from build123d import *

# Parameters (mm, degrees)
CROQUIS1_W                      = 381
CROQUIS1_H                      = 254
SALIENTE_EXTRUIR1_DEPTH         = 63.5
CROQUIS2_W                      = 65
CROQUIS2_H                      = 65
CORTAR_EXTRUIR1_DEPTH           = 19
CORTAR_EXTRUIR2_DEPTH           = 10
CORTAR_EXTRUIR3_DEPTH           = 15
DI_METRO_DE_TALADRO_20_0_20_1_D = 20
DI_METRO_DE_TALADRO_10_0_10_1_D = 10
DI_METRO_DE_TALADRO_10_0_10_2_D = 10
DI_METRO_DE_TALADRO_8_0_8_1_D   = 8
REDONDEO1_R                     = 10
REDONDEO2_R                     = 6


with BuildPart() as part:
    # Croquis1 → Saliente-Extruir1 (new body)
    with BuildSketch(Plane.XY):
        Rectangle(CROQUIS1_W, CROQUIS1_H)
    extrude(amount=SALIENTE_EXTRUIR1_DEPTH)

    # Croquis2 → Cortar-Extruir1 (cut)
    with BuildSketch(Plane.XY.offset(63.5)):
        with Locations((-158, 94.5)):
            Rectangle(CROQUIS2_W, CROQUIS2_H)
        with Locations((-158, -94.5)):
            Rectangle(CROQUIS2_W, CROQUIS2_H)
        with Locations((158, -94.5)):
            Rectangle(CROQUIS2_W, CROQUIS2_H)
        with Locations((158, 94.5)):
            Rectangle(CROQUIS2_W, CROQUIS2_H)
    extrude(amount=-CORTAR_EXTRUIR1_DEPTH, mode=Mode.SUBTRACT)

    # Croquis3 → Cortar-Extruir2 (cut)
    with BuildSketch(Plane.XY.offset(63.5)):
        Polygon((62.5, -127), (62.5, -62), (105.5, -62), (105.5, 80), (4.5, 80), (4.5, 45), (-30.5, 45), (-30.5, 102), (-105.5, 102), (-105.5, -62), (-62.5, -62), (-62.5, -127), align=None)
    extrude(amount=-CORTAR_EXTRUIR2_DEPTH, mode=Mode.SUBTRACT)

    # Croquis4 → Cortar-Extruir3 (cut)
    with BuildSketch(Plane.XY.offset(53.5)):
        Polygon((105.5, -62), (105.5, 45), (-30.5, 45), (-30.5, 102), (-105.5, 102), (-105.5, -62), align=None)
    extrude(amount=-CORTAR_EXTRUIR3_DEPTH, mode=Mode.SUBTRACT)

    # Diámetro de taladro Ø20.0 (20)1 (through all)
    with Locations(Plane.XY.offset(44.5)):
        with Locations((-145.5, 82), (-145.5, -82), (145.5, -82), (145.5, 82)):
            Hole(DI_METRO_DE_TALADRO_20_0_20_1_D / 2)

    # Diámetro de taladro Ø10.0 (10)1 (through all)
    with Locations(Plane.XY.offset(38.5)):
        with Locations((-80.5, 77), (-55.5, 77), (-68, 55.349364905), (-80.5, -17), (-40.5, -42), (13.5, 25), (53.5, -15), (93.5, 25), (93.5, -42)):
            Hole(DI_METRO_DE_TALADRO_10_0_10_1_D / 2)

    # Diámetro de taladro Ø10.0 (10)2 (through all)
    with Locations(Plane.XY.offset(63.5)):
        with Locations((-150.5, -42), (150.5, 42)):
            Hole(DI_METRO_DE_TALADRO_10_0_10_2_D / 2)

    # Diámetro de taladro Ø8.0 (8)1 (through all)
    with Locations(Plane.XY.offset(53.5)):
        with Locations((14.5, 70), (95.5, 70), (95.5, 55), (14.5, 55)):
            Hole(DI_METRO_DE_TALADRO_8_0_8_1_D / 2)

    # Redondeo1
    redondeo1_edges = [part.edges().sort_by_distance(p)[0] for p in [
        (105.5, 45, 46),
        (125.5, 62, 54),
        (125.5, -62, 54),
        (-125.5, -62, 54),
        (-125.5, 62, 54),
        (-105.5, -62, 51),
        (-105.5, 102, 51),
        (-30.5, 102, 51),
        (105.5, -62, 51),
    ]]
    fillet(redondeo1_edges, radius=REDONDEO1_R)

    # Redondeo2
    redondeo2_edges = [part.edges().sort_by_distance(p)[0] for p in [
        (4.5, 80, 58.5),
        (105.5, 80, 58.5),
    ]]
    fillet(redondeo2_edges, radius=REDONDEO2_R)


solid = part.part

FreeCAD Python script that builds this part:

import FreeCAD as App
import Part
import Sketcher

V = App.Vector
Q = App.Units.Quantity


def edges_at(feature, points):
    """Names of the edges that pass closest to the given points."""
    edges = feature.Shape.Edges
    near = lambda p: min(range(len(edges)), key=lambda i: edges[i].distToShape(Part.Vertex(*p))[0])
    return sorted({f"Edge{near(p) + 1}" for p in points})


def add_polygon(sketch, points):
    """Adds a closed chain of lines whose ends are joined by coincident constraints."""
    first, n = sketch.GeometryCount, len(points)
    for a, b in zip(points, points[1:] + points[:1]):
        sketch.addGeometry(Part.LineSegment(App.Vector(*a, 0), App.Vector(*b, 0)), False)
    for i in range(n):
        sketch.addConstraint(Sketcher.Constraint("Coincident", first + i, 2, first + (i + 1) % n, 1))

doc = App.newDocument("Part")
body = doc.addObject("PartDesign::Body", "Body")

sketch1 = body.newObject("Sketcher::SketchObject", "Sketch")
sketch1.AttachmentSupport = (doc.getObject("XY_Plane"), [""])
sketch1.MapMode = "FlatFace"
add_polygon(sketch1, [(-190, 127), (-190, -127), (190, -127), (190, 127)])
sketch1.addConstraint(Sketcher.Constraint("Vertical", 0))
sketch1.addConstraint(Sketcher.Constraint("Horizontal", 1))
sketch1.addConstraint(Sketcher.Constraint("Vertical", 2))
sketch1.addConstraint(Sketcher.Constraint("Horizontal", 3))
sketch1.addConstraint(Sketcher.Constraint("Symmetric", 0, 2, 2, 2, -1, 1))
sketch1.addConstraint(Sketcher.Constraint("DistanceX", 1, 1, 1, 2, Q("381 mm")))
sketch1.addConstraint(Sketcher.Constraint("DistanceY", 0, 2, 0, 1, Q("254 mm")))
pad1 = body.newObject("PartDesign::Pad", "Pad")
pad1.Profile = sketch1
pad1.Length = 63.5

sketch2 = body.newObject("Sketcher::SketchObject", "Sketch001")
sketch2.AttachmentSupport = (doc.getObject("XY_Plane"), [""])
sketch2.MapMode = "FlatFace"
sketch2.AttachmentOffset = App.Placement(V(0, 0, 63.5), App.Rotation())
add_polygon(sketch2, [(-190, 127), (-190, 62), (-126, 62), (-126, 127)])
add_polygon(sketch2, [(-190, -62), (-190, -127), (-126, -127), (-126, -62)])
add_polygon(sketch2, [(126, -62), (126, -127), (190, -127), (190, -62)])
add_polygon(sketch2, [(126, 127), (126, 62), (190, 62), (190, 127)])
sketch2.addConstraint(Sketcher.Constraint("Vertical", 0))
sketch2.addConstraint(Sketcher.Constraint("Horizontal", 1))
sketch2.addConstraint(Sketcher.Constraint("Vertical", 2))
sketch2.addConstraint(Sketcher.Constraint("Horizontal", 3))
sketch2.addConstraint(Sketcher.Constraint("Vertical", 4))
sketch2.addConstraint(Sketcher.Constraint("Horizontal", 5))
sketch2.addConstraint(Sketcher.Constraint("Vertical", 6))
sketch2.addConstraint(Sketcher.Constraint("Horizontal", 7))
sketch2.addConstraint(Sketcher.Constraint("Vertical", 8))
sketch2.addConstraint(Sketcher.Constraint("Horizontal", 9))
sketch2.addConstraint(Sketcher.Constraint("Vertical", 10))
sketch2.addConstraint(Sketcher.Constraint("Horizontal", 11))
sketch2.addConstraint(Sketcher.Constraint("Vertical", 12))
sketch2.addConstraint(Sketcher.Constraint("Horizontal", 13))
sketch2.addConstraint(Sketcher.Constraint("Vertical", 14))
sketch2.addConstraint(Sketcher.Constraint("Horizontal", 15))
sketch2.addConstraint(Sketcher.Constraint("Symmetric", 2, 2, 8, 2, -1, 1))
sketch2.addConstraint(Sketcher.Constraint("Symmetric", 0, 2, 10, 2, -1, 1))
sketch2.addConstraint(Sketcher.Constraint("Symmetric", 6, 2, 12, 2, -1, 1))
sketch2.addConstraint(Sketcher.Constraint("Symmetric", 4, 2, 14, 2, -1, 1))
sketch2.addConstraint(Sketcher.Constraint("Symmetric", 5, 2, 8, 2, -2))
sketch2.addConstraint(Sketcher.Constraint("Symmetric", 7, 2, 10, 2, -2))
sketch2.addConstraint(Sketcher.Constraint("Equal", 15, 0))
sketch2.addConstraint(Sketcher.Constraint("DistanceX", 1, 1, 1, 2, Q("65 mm")))
sketch2.addConstraint(Sketcher.Constraint("DistanceY", -1, 1, 0, 2, Q("62 mm")))
sketch2.addConstraint(Sketcher.Constraint("DistanceX", 5, 2, 8, 2, Q("251 mm")))
pocket1 = body.newObject("PartDesign::Pocket", "Pocket")
pocket1.Profile = sketch2
pocket1.Length = 19

sketch3 = body.newObject("Sketcher::SketchObject", "Sketch002")
sketch3.AttachmentSupport = (doc.getObject("XY_Plane"), [""])
sketch3.MapMode = "FlatFace"
sketch3.AttachmentOffset = App.Placement(V(0, 0, 63.5), App.Rotation())
add_polygon(sketch3, [(62, -127), (62, -62), (106, -62), (106, 80), (4, 80), (4, 45), (-30, 45), (-30, 102), (-106, 102), (-106, -62), (-62, -62), (-62, -127)])
sketch3.addConstraint(Sketcher.Constraint("Vertical", 0))
sketch3.addConstraint(Sketcher.Constraint("Horizontal", 1))
sketch3.addConstraint(Sketcher.Constraint("Vertical", 2))
sketch3.addConstraint(Sketcher.Constraint("Horizontal", 3))
sketch3.addConstraint(Sketcher.Constraint("Vertical", 4))
sketch3.addConstraint(Sketcher.Constraint("Horizontal", 5))
sketch3.addConstraint(Sketcher.Constraint("Vertical", 6))
sketch3.addConstraint(Sketcher.Constraint("Horizontal", 7))
sketch3.addConstraint(Sketcher.Constraint("Vertical", 8))
sketch3.addConstraint(Sketcher.Constraint("Horizontal", 9))
sketch3.addConstraint(Sketcher.Constraint("Vertical", 10))
sketch3.addConstraint(Sketcher.Constraint("Horizontal", 11))
sketch3.addConstraint(Sketcher.Constraint("Symmetric", 1, 2, 8, 2, -2))
sketch3.addConstraint(Sketcher.Constraint("Equal", 1, 9))
sketch3.addConstraint(Sketcher.Constraint("Equal", 5, 4))
sketch3.addConstraint(Sketcher.Constraint("DistanceX", 1, 1, 1, 2, Q("43 mm")))
sketch3.addConstraint(Sketcher.Constraint("DistanceX", 3, 2, 3, 1, Q("101 mm")))
sketch3.addConstraint(Sketcher.Constraint("DistanceX", 5, 2, 5, 1, Q("35 mm")))
sketch3.addConstraint(Sketcher.Constraint("DistanceX", 7, 2, 7, 1, Q("75 mm")))
sketch3.addConstraint(Sketcher.Constraint("DistanceY", 0, 1, 0, 2, Q("65 mm")))
sketch3.addConstraint(Sketcher.Constraint("DistanceY", 2, 1, 2, 2, Q("142 mm")))
sketch3.addConstraint(Sketcher.Constraint("DistanceY", 6, 1, 6, 2, Q("57 mm")))
sketch3.addConstraint(Sketcher.Constraint("DistanceY", 0, 2, -1, 1, Q("62 mm")))
pocket2 = body.newObject("PartDesign::Pocket", "Pocket001")
pocket2.Profile = sketch3
pocket2.Length = 10

sketch4 = body.newObject("Sketcher::SketchObject", "Sketch003")
sketch4.AttachmentSupport = (doc.getObject("XY_Plane"), [""])
sketch4.MapMode = "FlatFace"
sketch4.AttachmentOffset = App.Placement(V(0, 0, 53.5), App.Rotation())
add_polygon(sketch4, [(106, -62), (106, 45), (-30, 45), (-30, 102), (-106, 102), (-106, -62)])
sketch4.addConstraint(Sketcher.Constraint("Vertical", 0))
sketch4.addConstraint(Sketcher.Constraint("Horizontal", 1))
sketch4.addConstraint(Sketcher.Constraint("Vertical", 2))
sketch4.addConstraint(Sketcher.Constraint("Horizontal", 3))
sketch4.addConstraint(Sketcher.Constraint("Vertical", 4))
sketch4.addConstraint(Sketcher.Constraint("Horizontal", 5))
sketch4.addConstraint(Sketcher.Constraint("DistanceX", 1, 2, 1, 1, Q("136 mm")))
sketch4.addConstraint(Sketcher.Constraint("DistanceX", 3, 2, 3, 1, Q("75 mm")))
sketch4.addConstraint(Sketcher.Constraint("DistanceY", 0, 1, 0, 2, Q("107 mm")))
sketch4.addConstraint(Sketcher.Constraint("DistanceY", 2, 1, 2, 2, Q("57 mm")))
sketch4.addConstraint(Sketcher.Constraint("DistanceY", -1, 1, 0, 2, Q("45 mm")))
sketch4.addConstraint(Sketcher.Constraint("DistanceX", -1, 1, 0, 2, Q("105.5 mm")))
pocket3 = body.newObject("PartDesign::Pocket", "Pocket002")
pocket3.Profile = sketch4
pocket3.Length = 15

sketch5 = body.newObject("Sketcher::SketchObject", "Sketch004")
sketch5.AttachmentSupport = (doc.getObject("XY_Plane"), [""])
sketch5.MapMode = "FlatFace"
sketch5.AttachmentOffset = App.Placement(V(0, 0, 44.5), App.Rotation())
sketch5.addGeometry(Part.Circle(V(-146, 82, 0), V(0, 0, 1), 10), False)
sketch5.addGeometry(Part.Circle(V(-146, -82, 0), V(0, 0, 1), 10), False)
sketch5.addGeometry(Part.Circle(V(146, -82, 0), V(0, 0, 1), 10), False)
sketch5.addGeometry(Part.Circle(V(146, 82, 0), V(0, 0, 1), 10), False)
sketch5.addConstraint(Sketcher.Constraint("Equal", 0, 1))
sketch5.addConstraint(Sketcher.Constraint("Equal", 1, 2))
sketch5.addConstraint(Sketcher.Constraint("Equal", 2, 3))
sketch5.addConstraint(Sketcher.Constraint("Symmetric", 0, 3, 2, 3, -1, 1))
sketch5.addConstraint(Sketcher.Constraint("Symmetric", 1, 3, 3, 3, -1, 1))
sketch5.addConstraint(Sketcher.Constraint("Symmetric", 1, 3, 2, 3, -2))
sketch5.addConstraint(Sketcher.Constraint("Diameter", 0, Q("20 mm")))
sketch5.addConstraint(Sketcher.Constraint("DistanceY", -1, 1, 0, 3, Q("82 mm")))
sketch5.addConstraint(Sketcher.Constraint("DistanceX", 1, 3, 2, 3, Q("291 mm")))
doc.recompute()
hole = body.newObject("PartDesign::Hole", "Hole")
hole.Profile = sketch5
hole.ThreadType = "None"
hole.Diameter = 20
hole.DepthType = "ThroughAll"

sketch6 = body.newObject("Sketcher::SketchObject", "Sketch005")
sketch6.AttachmentSupport = (doc.getObject("XY_Plane"), [""])
sketch6.MapMode = "FlatFace"
sketch6.AttachmentOffset = App.Placement(V(0, 0, 38.5), App.Rotation())
sketch6.addGeometry(Part.Circle(V(-80, 77, 0), V(0, 0, 1), 5), False)
sketch6.addGeometry(Part.Circle(V(-56, 77, 0), V(0, 0, 1), 5), False)
sketch6.addGeometry(Part.Circle(V(-68, 55, 0), V(0, 0, 1), 5), False)
sketch6.addGeometry(Part.Circle(V(-80, -17, 0), V(0, 0, 1), 5), False)
sketch6.addGeometry(Part.Circle(V(-40, -42, 0), V(0, 0, 1), 5), False)
sketch6.addGeometry(Part.Circle(V(14, 25, 0), V(0, 0, 1), 5), False)
sketch6.addGeometry(Part.Circle(V(54, -15, 0), V(0, 0, 1), 5), False)
sketch6.addGeometry(Part.Circle(V(94, 25, 0), V(0, 0, 1), 5), False)
sketch6.addGeometry(Part.Circle(V(94, -42, 0), V(0, 0, 1), 5), False)
sketch6.addConstraint(Sketcher.Constraint("Equal", 0, 1))
sketch6.addConstraint(Sketcher.Constraint("Equal", 1, 2))
sketch6.addConstraint(Sketcher.Constraint("Equal", 2, 3))
sketch6.addConstraint(Sketcher.Constraint("Equal", 3, 4))
sketch6.addConstraint(Sketcher.Constraint("Equal", 4, 5))
sketch6.addConstraint(Sketcher.Constraint("Equal", 5, 6))
sketch6.addConstraint(Sketcher.Constraint("Equal", 6, 7))
sketch6.addConstraint(Sketcher.Constraint("Equal", 7, 8))
sketch6.addConstraint(Sketcher.Constraint("Horizontal", 0, 3, 1, 3))
sketch6.addConstraint(Sketcher.Constraint("Horizontal", 5, 3, 7, 3))
sketch6.addConstraint(Sketcher.Constraint("Horizontal", 4, 3, 8, 3))
sketch6.addConstraint(Sketcher.Constraint("Vertical", 0, 3, 3, 3))
sketch6.addConstraint(Sketcher.Constraint("Vertical", 7, 3, 8, 3))
sketch6.addConstraint(Sketcher.Constraint("Diameter", 0, Q("10 mm")))
sketch6.addConstraint(Sketcher.Constraint("DistanceY", -1, 1, 0, 3, Q("77 mm")))
sketch6.addConstraint(Sketcher.Constraint("DistanceX", 2, 3, -1, 1, Q("68 mm")))
sketch6.addConstraint(Sketcher.Constraint("DistanceY", 3, 3, -1, 1, Q("17 mm")))
sketch6.addConstraint(Sketcher.Constraint("DistanceY", 4, 3, -1, 1, Q("42 mm")))
sketch6.addConstraint(Sketcher.Constraint("DistanceY", -1, 1, 5, 3, Q("25 mm")))
sketch6.addConstraint(Sketcher.Constraint("DistanceY", 6, 3, -1, 1, Q("15 mm")))
sketch6.addConstraint(Sketcher.Constraint("DistanceX", 0, 3, 1, 3, Q("25 mm")))
sketch6.addConstraint(Sketcher.Constraint("DistanceX", 3, 3, 4, 3, Q("40 mm")))
sketch6.addConstraint(Sketcher.Constraint("DistanceX", 4, 3, 5, 3, Q("54 mm")))
sketch6.addConstraint(Sketcher.Constraint("DistanceX", 5, 3, 6, 3, Q("40 mm")))
sketch6.addConstraint(Sketcher.Constraint("DistanceX", 6, 3, 7, 3, Q("40 mm")))
sketch6.addConstraint(Sketcher.Constraint("DistanceX", 0, 3, -1, 1, Q("80.5 mm")))
sketch6.addConstraint(Sketcher.Constraint("DistanceY", -1, 1, 2, 3, Q("55.349365 mm")))
doc.recompute()
hole2 = body.newObject("PartDesign::Hole", "Hole001")
hole2.Profile = sketch6
hole2.ThreadType = "None"
hole2.Diameter = 10
hole2.DepthType = "ThroughAll"

sketch7 = body.newObject("Sketcher::SketchObject", "Sketch006")
sketch7.AttachmentSupport = (doc.getObject("XY_Plane"), [""])
sketch7.MapMode = "FlatFace"
sketch7.AttachmentOffset = App.Placement(V(0, 0, 63.5), App.Rotation())
sketch7.addGeometry(Part.Circle(V(-150, -42, 0), V(0, 0, 1), 5), False)
sketch7.addGeometry(Part.Circle(V(150, 42, 0), V(0, 0, 1), 5), False)
sketch7.addConstraint(Sketcher.Constraint("Equal", 0, 1))
sketch7.addConstraint(Sketcher.Constraint("Symmetric", 0, 3, 1, 3, -1, 1))
sketch7.addConstraint(Sketcher.Constraint("Diameter", 0, Q("10 mm")))
sketch7.addConstraint(Sketcher.Constraint("DistanceY", 0, 3, -1, 1, Q("42 mm")))
sketch7.addConstraint(Sketcher.Constraint("DistanceX", 0, 3, 1, 3, Q("301 mm")))
doc.recompute()
hole3 = body.newObject("PartDesign::Hole", "Hole002")
hole3.Profile = sketch7
hole3.ThreadType = "None"
hole3.Diameter = 10
hole3.DepthType = "ThroughAll"

sketch8 = body.newObject("Sketcher::SketchObject", "Sketch007")
sketch8.AttachmentSupport = (doc.getObject("XY_Plane"), [""])
sketch8.MapMode = "FlatFace"
sketch8.AttachmentOffset = App.Placement(V(0, 0, 53.5), App.Rotation())
sketch8.addGeometry(Part.Circle(V(14.5, 70, 0), V(0, 0, 1), 4), False)
sketch8.addGeometry(Part.Circle(V(95.5, 70, 0), V(0, 0, 1), 4), False)
sketch8.addGeometry(Part.Circle(V(95.5, 55, 0), V(0, 0, 1), 4), False)
sketch8.addGeometry(Part.Circle(V(14.5, 55, 0), V(0, 0, 1), 4), False)
sketch8.addConstraint(Sketcher.Constraint("Equal", 0, 1))
sketch8.addConstraint(Sketcher.Constraint("Equal", 1, 2))
sketch8.addConstraint(Sketcher.Constraint("Equal", 2, 3))
sketch8.addConstraint(Sketcher.Constraint("Horizontal", 0, 3, 1, 3))
sketch8.addConstraint(Sketcher.Constraint("Horizontal", 2, 3, 3, 3))
sketch8.addConstraint(Sketcher.Constraint("Vertical", 1, 3, 2, 3))
sketch8.addConstraint(Sketcher.Constraint("Vertical", 0, 3, 3, 3))
sketch8.addConstraint(Sketcher.Constraint("Diameter", 0, Q("8 mm")))
sketch8.addConstraint(Sketcher.Constraint("DistanceY", -1, 1, 0, 3, Q("70 mm")))
sketch8.addConstraint(Sketcher.Constraint("DistanceY", -1, 1, 2, 3, Q("55 mm")))
sketch8.addConstraint(Sketcher.Constraint("DistanceX", 0, 3, 1, 3, Q("81 mm")))
sketch8.addConstraint(Sketcher.Constraint("DistanceX", -1, 1, 0, 3, Q("14.5 mm")))
doc.recompute()
hole4 = body.newObject("PartDesign::Hole", "Hole003")
hole4.Profile = sketch8
hole4.ThreadType = "None"
hole4.Diameter = 8
hole4.DepthType = "ThroughAll"
doc.recompute()

fillet = body.newObject("PartDesign::Fillet", "Fillet")
fillet.Base = (hole4, edges_at(hole4, [
    (105.5, 45, 46),
    (125.5, 62, 54),
    (125.5, -62, 54),
    (-125.5, -62, 54),
    (-125.5, 62, 54),
    (-105.5, -62, 51),
    (-105.5, 102, 51),
    (-30.5, 102, 51),
    (105.5, -62, 51),
]))
fillet.Radius = 10
doc.recompute()

fillet2 = body.newObject("PartDesign::Fillet", "Fillet001")
fillet2.Base = (fillet, edges_at(fillet, [(4.5, 80, 58.5), (105.5, 80, 58.5)]))
fillet2.Radius = 6

doc.recompute()
